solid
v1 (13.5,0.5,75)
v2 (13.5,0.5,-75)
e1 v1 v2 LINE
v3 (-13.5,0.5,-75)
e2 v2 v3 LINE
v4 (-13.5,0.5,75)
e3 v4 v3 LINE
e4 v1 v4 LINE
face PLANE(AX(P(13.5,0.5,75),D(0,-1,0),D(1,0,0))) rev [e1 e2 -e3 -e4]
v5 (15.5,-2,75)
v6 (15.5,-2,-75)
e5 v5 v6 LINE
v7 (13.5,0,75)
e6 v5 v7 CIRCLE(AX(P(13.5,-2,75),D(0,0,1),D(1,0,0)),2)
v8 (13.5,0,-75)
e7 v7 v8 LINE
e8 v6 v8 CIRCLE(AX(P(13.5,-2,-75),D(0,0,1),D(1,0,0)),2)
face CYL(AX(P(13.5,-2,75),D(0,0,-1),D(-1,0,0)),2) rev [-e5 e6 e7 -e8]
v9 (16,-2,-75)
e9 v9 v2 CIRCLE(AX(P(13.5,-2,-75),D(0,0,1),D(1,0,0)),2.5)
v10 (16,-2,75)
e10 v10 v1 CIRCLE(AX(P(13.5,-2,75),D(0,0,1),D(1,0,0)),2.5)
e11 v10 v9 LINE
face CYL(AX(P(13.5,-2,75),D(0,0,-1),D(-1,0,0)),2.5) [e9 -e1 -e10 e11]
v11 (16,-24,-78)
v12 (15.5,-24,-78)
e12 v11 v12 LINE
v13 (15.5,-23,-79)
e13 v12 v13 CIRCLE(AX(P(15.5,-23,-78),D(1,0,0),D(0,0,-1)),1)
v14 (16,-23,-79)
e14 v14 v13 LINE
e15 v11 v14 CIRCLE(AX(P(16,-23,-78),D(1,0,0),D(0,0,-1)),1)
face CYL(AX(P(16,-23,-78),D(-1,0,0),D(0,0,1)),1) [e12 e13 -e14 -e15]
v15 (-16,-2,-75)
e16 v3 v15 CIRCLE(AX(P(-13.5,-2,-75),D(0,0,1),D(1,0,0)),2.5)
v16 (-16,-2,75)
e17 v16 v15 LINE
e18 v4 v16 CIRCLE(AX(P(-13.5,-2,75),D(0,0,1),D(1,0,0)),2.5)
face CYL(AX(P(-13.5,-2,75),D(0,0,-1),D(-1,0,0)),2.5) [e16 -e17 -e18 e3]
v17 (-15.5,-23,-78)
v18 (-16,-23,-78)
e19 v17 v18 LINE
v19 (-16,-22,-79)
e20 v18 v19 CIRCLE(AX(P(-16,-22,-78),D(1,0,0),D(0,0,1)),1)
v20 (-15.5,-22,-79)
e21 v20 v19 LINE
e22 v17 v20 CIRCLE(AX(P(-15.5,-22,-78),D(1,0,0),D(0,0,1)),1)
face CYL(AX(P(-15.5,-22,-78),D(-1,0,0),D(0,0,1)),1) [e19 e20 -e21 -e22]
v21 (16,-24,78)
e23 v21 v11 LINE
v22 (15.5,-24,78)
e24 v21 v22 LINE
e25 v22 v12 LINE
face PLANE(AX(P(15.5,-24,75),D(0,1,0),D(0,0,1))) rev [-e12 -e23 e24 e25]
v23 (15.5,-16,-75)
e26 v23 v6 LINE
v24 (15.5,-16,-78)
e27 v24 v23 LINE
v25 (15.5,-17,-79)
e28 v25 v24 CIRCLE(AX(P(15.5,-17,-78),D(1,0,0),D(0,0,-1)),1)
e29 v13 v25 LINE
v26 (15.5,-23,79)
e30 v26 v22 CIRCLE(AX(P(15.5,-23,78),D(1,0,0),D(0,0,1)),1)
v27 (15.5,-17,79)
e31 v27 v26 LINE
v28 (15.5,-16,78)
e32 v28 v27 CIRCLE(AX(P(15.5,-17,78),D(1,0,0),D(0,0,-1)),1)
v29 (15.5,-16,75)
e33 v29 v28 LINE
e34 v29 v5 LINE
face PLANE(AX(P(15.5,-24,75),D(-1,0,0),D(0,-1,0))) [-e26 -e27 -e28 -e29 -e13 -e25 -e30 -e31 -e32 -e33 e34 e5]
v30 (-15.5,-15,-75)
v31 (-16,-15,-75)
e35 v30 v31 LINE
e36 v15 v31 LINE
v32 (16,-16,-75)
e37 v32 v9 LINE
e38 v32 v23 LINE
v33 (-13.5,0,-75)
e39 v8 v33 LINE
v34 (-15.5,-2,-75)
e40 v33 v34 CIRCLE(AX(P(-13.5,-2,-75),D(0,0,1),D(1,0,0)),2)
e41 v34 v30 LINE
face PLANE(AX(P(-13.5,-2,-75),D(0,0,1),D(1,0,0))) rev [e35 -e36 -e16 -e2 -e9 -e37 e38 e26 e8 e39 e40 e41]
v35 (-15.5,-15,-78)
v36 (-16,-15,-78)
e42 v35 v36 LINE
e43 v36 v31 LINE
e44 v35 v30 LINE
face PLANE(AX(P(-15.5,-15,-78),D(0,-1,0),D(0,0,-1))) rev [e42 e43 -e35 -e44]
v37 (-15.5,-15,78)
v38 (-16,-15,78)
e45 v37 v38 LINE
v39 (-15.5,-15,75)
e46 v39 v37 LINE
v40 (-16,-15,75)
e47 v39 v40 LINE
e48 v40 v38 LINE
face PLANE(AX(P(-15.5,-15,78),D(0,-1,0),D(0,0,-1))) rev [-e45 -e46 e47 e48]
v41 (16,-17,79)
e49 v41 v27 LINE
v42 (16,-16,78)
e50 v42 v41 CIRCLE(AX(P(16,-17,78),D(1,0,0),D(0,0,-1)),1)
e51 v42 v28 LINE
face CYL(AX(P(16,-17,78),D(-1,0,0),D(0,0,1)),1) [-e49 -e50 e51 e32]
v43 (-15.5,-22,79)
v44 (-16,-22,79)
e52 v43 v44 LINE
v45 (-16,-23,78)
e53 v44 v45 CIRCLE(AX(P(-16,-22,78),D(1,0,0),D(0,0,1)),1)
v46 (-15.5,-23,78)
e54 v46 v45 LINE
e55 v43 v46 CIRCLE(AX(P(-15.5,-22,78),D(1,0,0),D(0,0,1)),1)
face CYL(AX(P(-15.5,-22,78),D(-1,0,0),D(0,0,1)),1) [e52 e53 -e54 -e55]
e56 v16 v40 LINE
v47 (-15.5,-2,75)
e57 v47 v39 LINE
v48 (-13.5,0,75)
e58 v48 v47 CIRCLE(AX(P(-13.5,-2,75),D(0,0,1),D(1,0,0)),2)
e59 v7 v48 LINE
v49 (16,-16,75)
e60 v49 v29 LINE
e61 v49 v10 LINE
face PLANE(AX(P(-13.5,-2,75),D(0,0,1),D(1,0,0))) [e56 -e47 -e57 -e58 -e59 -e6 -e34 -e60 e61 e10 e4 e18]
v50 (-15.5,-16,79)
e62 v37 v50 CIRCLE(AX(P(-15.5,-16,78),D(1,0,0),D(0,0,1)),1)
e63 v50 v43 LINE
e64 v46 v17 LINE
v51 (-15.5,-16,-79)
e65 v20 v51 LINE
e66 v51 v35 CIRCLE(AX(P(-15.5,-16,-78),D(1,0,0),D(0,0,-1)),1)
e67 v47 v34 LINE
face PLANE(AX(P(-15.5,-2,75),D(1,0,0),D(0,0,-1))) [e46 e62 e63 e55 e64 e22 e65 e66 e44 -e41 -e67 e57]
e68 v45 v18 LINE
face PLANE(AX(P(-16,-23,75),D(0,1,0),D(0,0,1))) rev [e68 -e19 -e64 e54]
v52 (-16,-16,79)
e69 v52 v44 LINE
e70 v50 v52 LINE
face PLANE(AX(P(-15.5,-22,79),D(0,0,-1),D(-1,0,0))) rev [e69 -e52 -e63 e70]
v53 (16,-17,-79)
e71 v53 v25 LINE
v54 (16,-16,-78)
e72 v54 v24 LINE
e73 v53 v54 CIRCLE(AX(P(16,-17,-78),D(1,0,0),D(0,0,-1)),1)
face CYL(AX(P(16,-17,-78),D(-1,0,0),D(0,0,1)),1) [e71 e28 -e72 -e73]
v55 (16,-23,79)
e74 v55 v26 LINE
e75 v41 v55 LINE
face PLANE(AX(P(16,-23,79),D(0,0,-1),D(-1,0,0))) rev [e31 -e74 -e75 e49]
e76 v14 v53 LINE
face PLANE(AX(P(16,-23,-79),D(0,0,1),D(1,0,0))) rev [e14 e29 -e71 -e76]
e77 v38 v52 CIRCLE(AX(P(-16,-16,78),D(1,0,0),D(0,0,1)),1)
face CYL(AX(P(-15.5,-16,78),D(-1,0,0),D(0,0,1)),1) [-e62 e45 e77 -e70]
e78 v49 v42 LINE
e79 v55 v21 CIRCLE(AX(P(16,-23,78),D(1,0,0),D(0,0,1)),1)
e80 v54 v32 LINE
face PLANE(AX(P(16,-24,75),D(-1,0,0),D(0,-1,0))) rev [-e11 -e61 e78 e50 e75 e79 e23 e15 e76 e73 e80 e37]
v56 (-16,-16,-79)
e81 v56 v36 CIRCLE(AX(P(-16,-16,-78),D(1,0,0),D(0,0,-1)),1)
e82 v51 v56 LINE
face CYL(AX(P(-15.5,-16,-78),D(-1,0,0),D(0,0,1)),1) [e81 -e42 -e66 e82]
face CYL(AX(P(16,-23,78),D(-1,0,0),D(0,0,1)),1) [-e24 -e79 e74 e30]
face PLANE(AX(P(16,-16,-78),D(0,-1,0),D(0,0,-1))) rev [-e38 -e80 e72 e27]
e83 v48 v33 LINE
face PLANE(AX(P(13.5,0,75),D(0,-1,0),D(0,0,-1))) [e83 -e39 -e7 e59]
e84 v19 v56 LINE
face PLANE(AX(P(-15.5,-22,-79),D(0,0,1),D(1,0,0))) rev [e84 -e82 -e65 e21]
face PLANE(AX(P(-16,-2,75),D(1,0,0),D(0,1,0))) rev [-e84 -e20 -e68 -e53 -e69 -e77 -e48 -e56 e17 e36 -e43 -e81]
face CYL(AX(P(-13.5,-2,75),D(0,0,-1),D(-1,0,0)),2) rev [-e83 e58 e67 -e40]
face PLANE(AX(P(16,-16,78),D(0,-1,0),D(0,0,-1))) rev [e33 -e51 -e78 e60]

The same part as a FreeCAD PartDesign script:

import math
import FreeCAD as App
import Part
import Sketcher
from FreeCAD import Vector

doc = App.newDocument("Part")
params = doc.addObject("Spreadsheet::Sheet", "Params")
for row, (alias, value) in enumerate([
    ("sketch1_radius", "2 mm"),
    ("sketch1_radius2", "2.5 mm"),
    ("sketch1_width", "27 mm"),
    ("sketch1_height", "22 mm"),
    ("sketch1_height2", "21 mm"),
    ("pad1_length", "150 mm"),
    ("sketch2_radius", "1 mm"),
    ("sketch2_width", "8 mm"),
    ("sketch2_height", "3 mm"),
    ("pad2_length", "0.5 mm"),
    ("sketch3_radius", "1 mm"),
    ("sketch3_width", "8 mm"),
    ("sketch3_height", "3 mm"),
    ("pad3_length", "0.5 mm"),
], start=1):
    params.set(f"A{row}", alias)
    params.set(f"B{row}", "=" + value)
    params.setAlias(f"B{row}", alias)

body = doc.addObject("PartDesign::Body", "Body")

sketch1 = body.newObject("Sketcher::SketchObject", "Sketch")
sketch1.AttachmentSupport = (doc.getObject("XY_Plane"), [""])
sketch1.MapMode = "FlatFace"
sketch1.addGeometry(Part.LineSegment(Vector(15.5, -2, 0), Vector(15.5, -24, 0)), False)
sketch1.addGeometry(Part.LineSegment(Vector(15.5, -24, 0), Vector(16, -24, 0)), False)
sketch1.addGeometry(Part.LineSegment(Vector(16, -24, 0), Vector(16, -2, 0)), False)
sketch1.addGeometry(Part.ArcOfCircle(Part.Circle(Vector(13.5, -2, 0), Vector(0, 0, 1), 2.5), math.radians(0), math.radians(90)), False)
sketch1.addGeometry(Part.LineSegment(Vector(13.5, 0.5, 0), Vector(-13.5, 0.5, 0)), False)
sketch1.addGeometry(Part.ArcOfCircle(Part.Circle(Vector(-13.5, -2, 0), Vector(0, 0, 1), 2.5), math.radians(90), math.radians(180)), False)
sketch1.addGeometry(Part.LineSegment(Vector(-16, -2, 0), Vector(-16, -23, 0)), False)
sketch1.addGeometry(Part.LineSegment(Vector(-16, -23, 0), Vector(-15.5, -23, 0)), False)
sketch1.addGeometry(Part.LineSegment(Vector(-15.5, -23, 0), Vector(-15.5, -2, 0)), False)
sketch1.addGeometry(Part.ArcOfCircle(Part.Circle(Vector(-13.5, -2, 0), Vector(0, 0, 1), 2), math.radians(90), math.radians(180)), False)
sketch1.addGeometry(Part.LineSegment(Vector(-13.5, 0, 0), Vector(13.5, 0, 0)), False)
sketch1.addGeometry(Part.ArcOfCircle(Part.Circle(Vector(13.5, -2, 0), Vector(0, 0, 1), 2), math.radians(0), math.radians(90)), False)
sketch1.addConstraint(Sketcher.Constraint("Coincident", 0, 2, 1, 1))
sketch1.addConstraint(Sketcher.Constraint("Coincident", 1, 2, 2, 1))
sketch1.addConstraint(Sketcher.Constraint("Tangent", 2, 2, 3, 1))
sketch1.addConstraint(Sketcher.Constraint("Tangent", 3, 2, 4, 1))
sketch1.addConstraint(Sketcher.Constraint("Tangent", 4, 2, 5, 1))
sketch1.addConstraint(Sketcher.Constraint("Tangent", 5, 2, 6, 1))
sketch1.addConstraint(Sketcher.Constraint("Coincident", 6, 2, 7, 1))
sketch1.addConstraint(Sketcher.Constraint("Coincident", 7, 2, 8, 1))
sketch1.addConstraint(Sketcher.Constraint("Tangent", 8, 2, 9, 2))
sketch1.addConstraint(Sketcher.Constraint("Tangent", 9, 1, 10, 1))
sketch1.addConstraint(Sketcher.Constraint("Tangent", 10, 2, 11, 2))
sketch1.addConstraint(Sketcher.Constraint("Tangent", 11, 1, 0, 1))
sketch1.addConstraint(Sketcher.Constraint("Vertical", 0))
sketch1.addConstraint(Sketcher.Constraint("Horizontal", 1))
sketch1.addConstraint(Sketcher.Constraint("Vertical", 2))
sketch1.addConstraint(Sketcher.Constraint("Horizontal", 4))
sketch1.addConstraint(Sketcher.Constraint("Vertical", 6))
sketch1.addConstraint(Sketcher.Constraint("Horizontal", 7))
sketch1.addConstraint(Sketcher.Constraint("Vertical", 8))
sketch1.addConstraint(Sketcher.Constraint("Horizontal", 10))
sketch1.addConstraint(Sketcher.Constraint("Coincident", 9, 3, 5, 3))
sketch1.addConstraint(Sketcher.Constraint("Coincident", 11, 3, 3, 3))
sketch1.addConstraint(Sketcher.Constraint("Equal", 3, 5))
sketch1.addConstraint(Sketcher.Constraint("Symmetric", 9, 1, 10, 2, -1, 1))
sketch1.addConstraint(Sketcher.Constraint("Radius", 9, 2.0))
sketch1.addConstraint(Sketcher.Constraint("Radius", 3, 2.5))
sketch1.addConstraint(Sketcher.Constraint("DistanceX", 4, 2, 4, 1, 27.0))
sketch1.addConstraint(Sketcher.Constraint("DistanceY", 0, 2, 0, 1, 22.0))
sketch1.addConstraint(Sketcher.Constraint("DistanceY", 6, 2, 6, 1, 21.0))
sketch1.setExpression("Constraints[24]", "Params.sketch1_radius")
sketch1.setExpression("Constraints[25]", "Params.sketch1_radius2")
sketch1.setExpression("Constraints[26]", "Params.sketch1_width")
sketch1.setExpression("Constraints[27]", "Params.sketch1_height")
sketch1.setExpression("Constraints[28]", "Params.sketch1_height2")
pad1 = body.newObject("PartDesign::Pad", "Pad")
pad1.Profile = sketch1
pad1.setExpression("Length", "Params.pad1_length")
pad1.Midplane = True

sketch2 = body.newObject("Sketcher::SketchObject", "Sketch001")
sketch2.AttachmentSupport = (doc.getObject("YZ_Plane"), [""])
sketch2.MapMode = "FlatFace"
sketch2.AttachmentOffset = App.Placement(Vector(0, 0, 15.75), App.Rotation())
sketch2.addGeometry(Part.LineSegment(Vector(-24, 78, 0), Vector(-24, 75, 0)), False)
sketch2.addGeometry(Part.LineSegment(Vector(-24, 75, 0), Vector(-16, 75, 0)), False)
sketch2.addGeometry(Part.LineSegment(Vector(-16, 75, 0), Vector(-16, 78, 0)), False)
sketch2.addGeometry(Part.ArcOfCircle(Part.Circle(Vector(-17, 78, 0), Vector(0, 0, 1), 1), math.radians(0), math.radians(90)), False)
sketch2.addGeometry(Part.LineSegment(Vector(-17, 79, 0), Vector(-23, 79, 0)), False)
sketch2.addGeometry(Part.ArcOfCircle(Part.Circle(Vector(-23, 78, 0), Vector(0, 0, 1), 1), math.radians(90), math.radians(180)), False)
sketch2.addGeometry(Part.LineSegment(Vector(-24, -75, 0), Vector(-24, -78, 0)), False)
sketch2.addGeometry(Part.ArcOfCircle(Part.Circle(Vector(-23, -78, 0), Vector(0, 0, 1), 1), math.radians(-180), math.radians(-90)), False)
sketch2.addGeometry(Part.LineSegment(Vector(-23, -79, 0), Vector(-17, -79, 0)), False)
sketch2.addGeometry(Part.ArcOfCircle(Part.Circle(Vector(-17, -78, 0), Vector(0, 0, 1), 1), math.radians(-90), math.radians(0)), False)
sketch2.addGeometry(Part.LineSegment(Vector(-16, -78, 0), Vector(-16, -75, 0)), False)
sketch2.addGeometry(Part.LineSegment(Vector(-16, -75, 0), Vector(-24, -75, 0)), False)
sketch2.addConstraint(Sketcher.Constraint("Coincident", 0, 2, 1, 1))
sketch2.addConstraint(Sketcher.Constraint("Coincident", 1, 2, 2, 1))
sketch2.addConstraint(Sketcher.Constraint("Tangent", 2, 2, 3, 1))
sketch2.addConstraint(Sketcher.Constraint("Tangent", 3, 2, 4, 1))
sketch2.addConstraint(Sketcher.Constraint("Tangent", 4, 2, 5, 1))
sketch2.addConstraint(Sketcher.Constraint("Tangent", 5, 2, 0, 1))
sketch2.addConstraint(Sketcher.Constraint("Tangent", 6, 2, 7, 1))
sketch2.addConstraint(Sketcher.Constraint("Tangent", 7, 2, 8, 1))
sketch2.addConstraint(Sketcher.Constraint("Tangent", 8, 2, 9, 1))
sketch2.addConstraint(Sketcher.Constraint("Tangent", 9, 2, 10, 1))
sketch2.addConstraint(Sketcher.Constraint("Coincident", 10, 2, 11, 1))
sketch2.addConstraint(Sketcher.Constraint("Coincident", 11, 2, 6, 1))
sketch2.addConstraint(Sketcher.Constraint("Vertical", 0))
sketch2.addConstraint(Sketcher.Constraint("Horizontal", 1))
sketch2.addConstraint(Sketcher.Constraint("Vertical", 2))
sketch2.addConstraint(Sketcher.Constraint("Horizontal", 4))
sketch2.addConstraint(Sketcher.Constraint("Vertical", 6))
sketch2.addConstraint(Sketcher.Constraint("Horizontal", 8))
sketch2.addConstraint(Sketcher.Constraint("Vertical", 10))
sketch2.addConstraint(Sketcher.Constraint("Horizontal", 11))
sketch2.addConstraint(Sketcher.Constraint("Equal", 3, 5))
sketch2.addConstraint(Sketcher.Constraint("Equal", 5, 7))
sketch2.addConstraint(Sketcher.Constraint("Equal", 7, 9))
sketch2.addConstraint(Sketcher.Constraint("Symmetric", 5, 3, 7, 3, -1))
sketch2.addConstraint(Sketcher.Constraint("Symmetric", 1, 2, 10, 2, -1))
sketch2.addConstraint(Sketcher.Constraint("Radius", 3, 1.0))
sketch2.addConstraint(Sketcher.Constraint("DistanceX", 1, 1, 1, 2, 8.0))
sketch2.addConstraint(Sketcher.Constraint("DistanceY", 0, 2, 0, 1, 3.0))
sketch2.addConstraint(Sketcher.Constraint("DistanceX", 3, 3, -1, 1, 17.0))
sketch2.addConstraint(Sketcher.Constraint("DistanceY", -1, 1, 3, 3, 78.0))
sketch2.setExpression("Constraints[25]", "Params.sketch2_radius")
sketch2.setExpression("Constraints[26]", "Params.sketch2_width")
sketch2.setExpression("Constraints[27]", "Params.sketch2_height")
pad2 = body.newObject("PartDesign::Pad", "Pad001")
pad2.Profile = sketch2
pad2.setExpression("Length", "Params.pad2_length")
pad2.Midplane = True

sketch3 = body.newObject("Sketcher::SketchObject", "Sketch002")
sketch3.AttachmentSupport = (doc.getObject("YZ_Plane"), [""])
sketch3.MapMode = "FlatFace"
sketch3.AttachmentOffset = App.Placement(Vector(0, 0, -15.75), App.Rotation())
sketch3.addGeometry(Part.LineSegment(Vector(-23, 78, 0), Vector(-23, 75, 0)), False)
sketch3.addGeometry(Part.LineSegment(Vector(-23, 75, 0), Vector(-15, 75, 0)), False)
sketch3.addGeometry(Part.LineSegment(Vector(-15, 75, 0), Vector(-15, 78, 0)), False)
sketch3.addGeometry(Part.ArcOfCircle(Part.Circle(Vector(-16, 78, 0), Vector(0, 0, 1), 1), math.radians(0), math.radians(90)), False)
sketch3.addGeometry(Part.LineSegment(Vector(-16, 79, 0), Vector(-22, 79, 0)), False)
sketch3.addGeometry(Part.ArcOfCircle(Part.Circle(Vector(-22, 78, 0), Vector(0, 0, 1), 1), math.radians(90), math.radians(180)), False)
sketch3.addGeometry(Part.LineSegment(Vector(-22, -79, 0), Vector(-16, -79, 0)), False)
sketch3.addGeometry(Part.ArcOfCircle(Part.Circle(Vector(-16, -78, 0), Vector(0, 0, 1), 1), math.radians(-90), math.radians(0)), False)
sketch3.addGeometry(Part.LineSegment(Vector(-15, -78, 0), Vector(-15, -75, 0)), False)
sketch3.addGeometry(Part.LineSegment(Vector(-15, -75, 0), Vector(-23, -75, 0)), False)
sketch3.addGeometry(Part.LineSegment(Vector(-23, -75, 0), Vector(-23, -78, 0)), False)
sketch3.addGeometry(Part.ArcOfCircle(Part.Circle(Vector(-22, -78, 0), Vector(0, 0, 1), 1), math.radians(-180), math.radians(-90)), False)
sketch3.addConstraint(Sketcher.Constraint("Coincident", 0, 2, 1, 1))
sketch3.addConstraint(Sketcher.Constraint("Coincident", 1, 2, 2, 1))
sketch3.addConstraint(Sketcher.Constraint("Tangent", 2, 2, 3, 1))
sketch3.addConstraint(Sketcher.Constraint("Tangent", 3, 2, 4, 1))
sketch3.addConstraint(Sketcher.Constraint("Tangent", 4, 2, 5, 1))
sketch3.addConstraint(Sketcher.Constraint("Tangent", 5, 2, 0, 1))
sketch3.addConstraint(Sketcher.Constraint("Tangent", 6, 2, 7, 1))
sketch3.addConstraint(Sketcher.Constraint("Tangent", 7, 2, 8, 1))
sketch3.addConstraint(Sketcher.Constraint("Coincident", 8, 2, 9, 1))
sketch3.addConstraint(Sketcher.Constraint("Coincident", 9, 2, 10, 1))
sketch3.addConstraint(Sketcher.Constraint("Tangent", 10, 2, 11, 1))
sketch3.addConstraint(Sketcher.Constraint("Tangent", 11, 2, 6, 1))
sketch3.addConstraint(Sketcher.Constraint("Vertical", 0))
sketch3.addConstraint(Sketcher.Constraint("Horizontal", 1))
sketch3.addConstraint(Sketcher.Constraint("Vertical", 2))
sketch3.addConstraint(Sketcher.Constraint("Horizontal", 4))
sketch3.addConstraint(Sketcher.Constraint("Horizontal", 6))
sketch3.addConstraint(Sketcher.Constraint("Vertical", 8))
sketch3.addConstraint(Sketcher.Constraint("Horizontal", 9))
sketch3.addConstraint(Sketcher.Constraint("Vertical", 10))
sketch3.addConstraint(Sketcher.Constraint("Equal", 3, 5))
sketch3.addConstraint(Sketcher.Constraint("Equal", 5, 7))
sketch3.addConstraint(Sketcher.Constraint("Equal", 7, 11))
sketch3.addConstraint(Sketcher.Constraint("Symmetric", 3, 3, 7, 3, -1))
sketch3.addConstraint(Sketcher.Constraint("Symmetric", 0, 2, 9, 2, -1))
sketch3.addConstraint(Sketcher.Constraint("Radius", 3, 1.0))
sketch3.addConstraint(Sketcher.Constraint("DistanceX", 1, 1, 1, 2, 8.0))
sketch3.addConstraint(Sketcher.Constraint("DistanceY", 0, 2, 0, 1, 3.0))
sketch3.addConstraint(Sketcher.Constraint("DistanceX", 3, 3, -1, 1, 16.0))
sketch3.addConstraint(Sketcher.Constraint("DistanceY", -1, 1, 3, 3, 78.0))
sketch3.setExpression("Constraints[25]", "Params.sketch3_radius")
sketch3.setExpression("Constraints[26]", "Params.sketch3_width")
sketch3.setExpression("Constraints[27]", "Params.sketch3_height")
pad3 = body.newObject("PartDesign::Pad", "Pad002")
pad3.Profile = sketch3
pad3.setExpression("Length", "Params.pad3_length")
pad3.Midplane = True

doc.recompute()
